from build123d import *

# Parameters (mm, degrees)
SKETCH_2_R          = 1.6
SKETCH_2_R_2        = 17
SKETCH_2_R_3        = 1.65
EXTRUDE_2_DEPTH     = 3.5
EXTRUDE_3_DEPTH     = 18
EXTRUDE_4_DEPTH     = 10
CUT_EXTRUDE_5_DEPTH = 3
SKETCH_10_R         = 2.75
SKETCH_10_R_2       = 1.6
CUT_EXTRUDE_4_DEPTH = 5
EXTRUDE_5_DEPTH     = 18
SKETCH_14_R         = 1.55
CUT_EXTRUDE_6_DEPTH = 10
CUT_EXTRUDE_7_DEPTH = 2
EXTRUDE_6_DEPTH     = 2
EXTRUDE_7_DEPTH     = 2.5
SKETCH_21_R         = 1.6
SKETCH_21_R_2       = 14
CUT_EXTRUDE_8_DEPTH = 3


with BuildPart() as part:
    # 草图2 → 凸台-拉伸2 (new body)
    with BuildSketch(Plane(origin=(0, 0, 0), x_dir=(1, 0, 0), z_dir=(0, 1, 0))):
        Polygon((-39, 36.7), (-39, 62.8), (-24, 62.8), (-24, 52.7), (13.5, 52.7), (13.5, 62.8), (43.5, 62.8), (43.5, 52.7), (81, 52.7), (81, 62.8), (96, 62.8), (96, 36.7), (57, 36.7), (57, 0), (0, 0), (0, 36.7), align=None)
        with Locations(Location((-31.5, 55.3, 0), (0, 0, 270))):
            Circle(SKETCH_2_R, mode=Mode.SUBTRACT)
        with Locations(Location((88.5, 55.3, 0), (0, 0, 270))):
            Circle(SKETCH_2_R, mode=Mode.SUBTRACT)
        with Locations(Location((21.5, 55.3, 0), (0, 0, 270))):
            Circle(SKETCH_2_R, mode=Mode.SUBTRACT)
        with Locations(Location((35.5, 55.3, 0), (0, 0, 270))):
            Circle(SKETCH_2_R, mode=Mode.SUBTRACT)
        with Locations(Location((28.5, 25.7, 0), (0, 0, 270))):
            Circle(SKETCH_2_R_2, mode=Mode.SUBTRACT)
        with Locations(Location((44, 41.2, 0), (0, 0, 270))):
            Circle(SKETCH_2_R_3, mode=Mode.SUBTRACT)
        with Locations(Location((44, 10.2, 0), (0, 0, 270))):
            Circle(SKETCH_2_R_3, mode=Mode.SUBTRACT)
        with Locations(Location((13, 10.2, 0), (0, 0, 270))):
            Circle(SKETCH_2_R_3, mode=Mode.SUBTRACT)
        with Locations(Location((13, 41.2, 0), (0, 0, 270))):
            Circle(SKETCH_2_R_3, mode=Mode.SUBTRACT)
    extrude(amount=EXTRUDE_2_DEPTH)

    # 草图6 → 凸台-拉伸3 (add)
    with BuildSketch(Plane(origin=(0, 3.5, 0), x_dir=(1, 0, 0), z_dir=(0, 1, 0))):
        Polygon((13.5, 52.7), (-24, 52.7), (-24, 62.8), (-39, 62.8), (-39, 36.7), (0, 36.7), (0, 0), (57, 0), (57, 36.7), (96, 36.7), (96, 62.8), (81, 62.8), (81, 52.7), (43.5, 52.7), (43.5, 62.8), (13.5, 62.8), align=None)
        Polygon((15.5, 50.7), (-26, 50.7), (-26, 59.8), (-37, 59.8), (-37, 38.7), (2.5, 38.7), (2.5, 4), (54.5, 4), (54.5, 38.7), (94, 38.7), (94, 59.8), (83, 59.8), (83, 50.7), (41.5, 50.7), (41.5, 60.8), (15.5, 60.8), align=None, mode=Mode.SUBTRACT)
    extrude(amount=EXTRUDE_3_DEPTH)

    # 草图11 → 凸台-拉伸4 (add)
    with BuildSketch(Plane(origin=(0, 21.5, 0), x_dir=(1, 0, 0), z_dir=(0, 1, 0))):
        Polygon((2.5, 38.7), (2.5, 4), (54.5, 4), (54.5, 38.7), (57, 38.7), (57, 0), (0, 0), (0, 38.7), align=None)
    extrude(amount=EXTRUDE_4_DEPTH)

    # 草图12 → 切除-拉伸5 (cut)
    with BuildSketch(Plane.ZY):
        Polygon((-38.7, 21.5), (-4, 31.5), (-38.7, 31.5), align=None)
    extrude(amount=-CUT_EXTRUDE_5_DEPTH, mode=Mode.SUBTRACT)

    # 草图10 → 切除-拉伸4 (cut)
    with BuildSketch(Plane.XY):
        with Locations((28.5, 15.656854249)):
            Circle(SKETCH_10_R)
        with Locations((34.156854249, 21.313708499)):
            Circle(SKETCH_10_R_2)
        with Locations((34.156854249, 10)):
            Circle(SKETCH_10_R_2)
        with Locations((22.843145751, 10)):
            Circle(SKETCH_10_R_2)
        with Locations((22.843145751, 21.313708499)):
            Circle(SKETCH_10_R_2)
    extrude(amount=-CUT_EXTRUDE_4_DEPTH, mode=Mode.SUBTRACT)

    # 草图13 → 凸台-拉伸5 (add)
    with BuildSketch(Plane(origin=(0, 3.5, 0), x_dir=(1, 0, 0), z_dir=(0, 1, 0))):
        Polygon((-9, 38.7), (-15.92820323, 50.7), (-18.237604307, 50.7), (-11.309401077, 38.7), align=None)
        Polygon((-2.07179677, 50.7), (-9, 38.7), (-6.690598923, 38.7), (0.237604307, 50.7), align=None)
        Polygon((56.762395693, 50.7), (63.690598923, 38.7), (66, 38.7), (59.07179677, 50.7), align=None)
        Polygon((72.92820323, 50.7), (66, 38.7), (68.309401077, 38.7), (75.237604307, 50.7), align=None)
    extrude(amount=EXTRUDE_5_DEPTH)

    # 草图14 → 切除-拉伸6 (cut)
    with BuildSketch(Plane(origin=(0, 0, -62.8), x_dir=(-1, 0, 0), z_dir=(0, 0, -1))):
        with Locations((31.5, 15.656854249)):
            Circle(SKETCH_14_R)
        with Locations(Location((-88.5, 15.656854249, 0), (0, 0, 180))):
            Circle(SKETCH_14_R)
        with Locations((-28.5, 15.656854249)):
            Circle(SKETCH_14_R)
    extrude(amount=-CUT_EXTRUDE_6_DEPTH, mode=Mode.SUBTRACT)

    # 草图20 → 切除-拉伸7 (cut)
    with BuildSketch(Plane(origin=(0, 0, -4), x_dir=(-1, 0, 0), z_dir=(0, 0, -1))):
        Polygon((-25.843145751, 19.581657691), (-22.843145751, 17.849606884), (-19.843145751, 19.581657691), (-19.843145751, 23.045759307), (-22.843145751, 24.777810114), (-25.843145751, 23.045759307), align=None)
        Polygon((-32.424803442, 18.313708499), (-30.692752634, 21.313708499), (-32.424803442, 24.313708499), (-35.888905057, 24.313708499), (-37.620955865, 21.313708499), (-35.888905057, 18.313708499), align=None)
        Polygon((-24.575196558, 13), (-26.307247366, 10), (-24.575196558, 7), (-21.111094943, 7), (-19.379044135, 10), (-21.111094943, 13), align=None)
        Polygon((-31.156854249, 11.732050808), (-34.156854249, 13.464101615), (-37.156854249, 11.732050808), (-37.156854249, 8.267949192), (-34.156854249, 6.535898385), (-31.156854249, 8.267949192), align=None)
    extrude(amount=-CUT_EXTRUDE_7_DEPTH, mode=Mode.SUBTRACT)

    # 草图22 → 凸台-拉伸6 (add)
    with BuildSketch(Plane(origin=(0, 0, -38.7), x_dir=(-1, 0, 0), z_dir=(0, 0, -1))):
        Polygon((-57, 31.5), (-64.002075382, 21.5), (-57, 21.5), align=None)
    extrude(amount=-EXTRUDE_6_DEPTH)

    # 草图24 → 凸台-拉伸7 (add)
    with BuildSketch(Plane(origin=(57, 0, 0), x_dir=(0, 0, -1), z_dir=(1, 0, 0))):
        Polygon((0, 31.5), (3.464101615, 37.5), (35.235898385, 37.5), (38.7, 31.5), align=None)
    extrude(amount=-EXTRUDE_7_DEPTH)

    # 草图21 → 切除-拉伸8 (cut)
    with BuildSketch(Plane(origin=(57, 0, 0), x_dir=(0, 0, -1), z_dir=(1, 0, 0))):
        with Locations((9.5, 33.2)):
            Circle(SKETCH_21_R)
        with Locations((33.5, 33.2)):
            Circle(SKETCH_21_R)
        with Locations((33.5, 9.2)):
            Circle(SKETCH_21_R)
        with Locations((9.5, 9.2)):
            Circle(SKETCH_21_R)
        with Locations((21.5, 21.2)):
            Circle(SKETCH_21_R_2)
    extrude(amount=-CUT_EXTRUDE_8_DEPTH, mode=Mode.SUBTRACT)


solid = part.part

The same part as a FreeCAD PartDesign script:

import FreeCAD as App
import Part
import Sketcher
from FreeCAD import Vector
Q = App.Units.Quantity


def add_polygon(sketch, points):
    """Adds a closed chain of lines whose ends are joined by coincident constraints."""
    first, n = sketch.GeometryCount, len(points)
    for a, b in zip(points, points[1:] + points[:1]):
        sketch.addGeometry(Part.LineSegment(App.Vector(*a, 0), App.Vector(*b, 0)), False)
    for i in range(n):
        sketch.addConstraint(Sketcher.Constraint("Coincident", first + i, 2, first + (i + 1) % n, 1))

doc = App.newDocument("Part")
body = doc.addObject("PartDesign::Body", "Body")

sketch1 = doc.addObject("Sketcher::SketchObject", "Sketch")
body.addObject(sketch1)
sketch1.AttachmentSupport = (doc.XZ_Plane, [""])
sketch1.MapMode = "FlatFace"
add_polygon(sketch1, [(-39, -62.8), (-39, -36.7), (0, -36.7), (0, 0), (57, 0), (57, -36.7), (96, -36.7), (96, -62.8), (81, -62.8), (81, -52.7), (43.5, -52.7), (43.5, -62.8), (13.5, -62.8), (13.5, -52.7), (-24, -52.7), (-24, -62.8)])
sketch1.addGeometry(Part.Circle(Vector(44, -10.2, 0), Vector(0, 0, 1), 1.6), False)
sketch1.addGeometry(Part.Circle(Vector(28.5, -25.7, 0), Vector(0, 0, 1), 17), False)
sketch1.addGeometry(Part.Circle(Vector(13, -10.2, 0), Vector(0, 0, 1), 1.6), False)
sketch1.addGeometry(Part.Circle(Vector(44, -41.2, 0), Vector(0, 0, 1), 1.6), False)
sketch1.addGeometry(Part.Circle(Vector(88.5, -55.3, 0), Vector(0, 0, 1), 1.6), False)
sketch1.addGeometry(Part.Circle(Vector(35.5, -55.3, 0), Vector(0, 0, 1), 1.6), False)
sketch1.addGeometry(Part.Circle(Vector(13, -41.2, 0), Vector(0, 0, 1), 1.6), False)
sketch1.addGeometry(Part.Circle(Vector(21.5, -55.3, 0), Vector(0, 0, 1), 1.6), False)
sketch1.addGeometry(Part.Circle(Vector(-31.5, -55.3, 0), Vector(0, 0, 1), 1.6), False)
sketch1.addConstraint([
    Sketcher.Constraint("Vertical", 0),
    Sketcher.Constraint("Horizontal", 1),
    Sketcher.Constraint("Vertical", 2),
    Sketcher.Constraint("Horizontal", 3),
    Sketcher.Constraint("Vertical", 4),
    Sketcher.Constraint("Horizontal", 5),
    Sketcher.Constraint("Vertical", 6),
    Sketcher.Constraint("Horizontal", 7),
    Sketcher.Constraint("Vertical", 8),
    Sketcher.Constraint("Horizontal", 9),
    Sketcher.Constraint("Vertical", 10),
    Sketcher.Constraint("Horizontal", 11),
    Sketcher.Constraint("Vertical", 12),
    Sketcher.Constraint("Horizontal", 13),
    Sketcher.Constraint("Vertical", 14),
    Sketcher.Constraint("Horizontal", 15),
    Sketcher.Constraint("Coincident", 2, 2, -1, 1),
    Sketcher.Constraint("Equal", 16, 18),
    Sketcher.Constraint("Equal", 18, 19),
    Sketcher.Constraint("Equal", 20, 21),
    Sketcher.Constraint("Equal", 19, 22),
    Sketcher.Constraint("Equal", 21, 23),
    Sketcher.Constraint("Equal", 23, 24),
    Sketcher.Constraint("Horizontal", 16, 3, 18, 3),
    Sketcher.Constraint("Horizontal", 20, 3, 21, 3),
    Sketcher.Constraint("Horizontal", 19, 3, 22, 3),
    Sketcher.Constraint("Horizontal", 21, 3, 23, 3),
    Sketcher.Constraint("Horizontal", 23, 3, 24, 3),
    Sketcher.Constraint("Horizontal", 1, 2, 4, 2),
    Sketcher.Constraint("Horizontal", 7, 2, 10, 2),
    Sketcher.Constraint("Horizontal", 9, 2, 12, 2),
    Sketcher.Constraint("Horizontal", 11, 2, 14, 2),
    Sketcher.Constraint("Vertical", 16, 3, 19, 3),
    Sketcher.Constraint("Vertical", 18, 3, 22, 3),
    Sketcher.Constraint("Equal", 1, 5),
    Sketcher.Constraint("Equal", 9, 13),
    Sketcher.Constraint("Equal", 7, 15),
    Sketcher.Constraint("Diameter", 17, 34.0),
    Sketcher.Constraint("Diameter", 16, 3.3),
    Sketcher.Constraint("Diameter", 20, 3.2),
    Sketcher.Constraint("DistanceX", 1, 1, 1, 2, 39.0),
    Sketcher.Constraint("DistanceX", 3, 1, 3, 2, 57.0),
    Sketcher.Constraint("DistanceX", 7, 2, 7, 1, 15.0),
    Sketcher.Constraint("DistanceX", 11, 2, 11, 1, 30.0),
    Sketcher.Constraint("DistanceY", 0, 1, 0, 2, 26.1),
    Sketcher.Constraint("DistanceY", 2, 1, 2, 2, 36.7),
    Sketcher.Constraint("DistanceY", 8, 1, 8, 2, 10.1),
    Sketcher.Constraint("DistanceX", -1, 1, 16, 3, 44.0),
    Sketcher.Constraint("DistanceX", -1, 1, 18, 3, 13.0),
    Sketcher.Constraint("DistanceY", 19, 3, 16, 3, 31.0),
    Sketcher.Constraint("DistanceX", 17, 3, 20, 3, 60.0),
    Sketcher.Constraint("DistanceX", 17, 3, 21, 3, 7.0),
    Sketcher.Constraint("DistanceX", 23, 3, 21, 3, 14.0),
    Sketcher.Constraint("DistanceX", 24, 3, 23, 3, 53.0),
    Sketcher.Constraint("DistanceY", 0, 2, 17, 3, 11.0),
    Sketcher.Constraint("DistanceX", 21, 3, 9, 2, 8.0),
    Sketcher.Constraint("DistanceY", 16, 3, -1, 1, 10.2),
    Sketcher.Constraint("DistanceY", 20, 3, -1, 1, 55.3),
])
pad1 = doc.addObject("PartDesign::Pad", "Pad")
body.addObject(pad1)
pad1.Profile = sketch1
pad1.Length = 3.5
pad1.Reversed = True

sketch2 = doc.addObject("Sketcher::SketchObject", "Sketch001")
body.addObject(sketch2)
sketch2.AttachmentSupport = (doc.XZ_Plane, [""])
sketch2.MapMode = "FlatFace"
sketch2.AttachmentOffset = App.Placement(Vector(0, 0, -3.5), App.Rotation())
add_polygon(sketch2, [(14, -53), (-24, -53), (-24, -63), (-39, -63), (-39, -37), (0, -37), (0, 0), (57, 0), (57, -37), (96, -37), (96, -63), (81, -63), (81, -53), (44, -53), (44, -63), (14, -63)])
add_polygon(sketch2, [(-26, -51), (16, -51), (16, -61), (42, -61), (42, -51), (83, -51), (83, -60), (94, -60), (94, -39), (54, -39), (54, -4), (2, -4), (2, -39), (-37, -39), (-37, -60), (-26, -60)])
sketch2.addConstraint([
    Sketcher.Constraint("Horizontal", 0),
    Sketcher.Constraint("Vertical", 1),
    Sketcher.Constraint("Horizontal", 2),
    Sketcher.Constraint("Vertical", 3),
    Sketcher.Constraint("Horizontal", 4),
    Sketcher.Constraint("Vertical", 5),
    Sketcher.Constraint("Horizontal", 6),
    Sketcher.Constraint("Vertical", 7),
    Sketcher.Constraint("Horizontal", 8),
    Sketcher.Constraint("Vertical", 9),
    Sketcher.Constraint("Horizontal", 10),
    Sketcher.Constraint("Vertical", 11),
    Sketcher.Constraint("Horizontal", 12),
    Sketcher.Constraint("Vertical", 13),
    Sketcher.Constraint("Horizontal", 14),
    Sketcher.Constraint("Vertical", 15),
    Sketcher.Constraint("Horizontal", 16),
    Sketcher.Constraint("Vertical", 17),
    Sketcher.Constraint("Horizontal", 18),
    Sketcher.Constraint("Vertical", 19),
    Sketcher.Constraint("Horizontal", 20),
    Sketcher.Constraint("Vertical", 21),
    Sketcher.Constraint("Horizontal", 22),
    Sketcher.Constraint("Vertical", 23),
    Sketcher.Constraint("Horizontal", 24),
    Sketcher.Constraint("Vertical", 25),
    Sketcher.Constraint("Horizontal", 26),
    Sketcher.Constraint("Vertical", 27),
    Sketcher.Constraint("Horizontal", 28),
    Sketcher.Constraint("Vertical", 29),
    Sketcher.Constraint("Horizontal", 30),
    Sketcher.Constraint("Vertical", 31),
    Sketcher.Constraint("Coincident", 5, 2, -1, 1),
    Sketcher.Constraint("Horizontal", 4, 2, 7, 2),
    Sketcher.Constraint("Horizontal", 2, 2, 9, 2),
    Sketcher.Constraint("Horizontal", 0, 2, 11, 2),
    Sketcher.Constraint("Horizontal", 10, 2, 13, 2),
    Sketcher.Constraint("Horizontal", 16, 2, 19, 2),
    Sketcher.Constraint("Horizontal", 24, 2, 27, 2),
    Sketcher.Constraint("Horizontal", 22, 2, 29, 2),
    Sketcher.Constraint("Equal", 4, 8),
    Sketcher.Constraint("Equal", 2, 10),
    Sketcher.Constraint("Equal", 0, 12),
    Sketcher.Constraint("Equal", 16, 20),
    Sketcher.Constraint("Equal", 24, 28),
    Sketcher.Constraint("Equal", 22, 30),
    Sketcher.Constraint("Equal", 15, 17),
    Sketcher.Constraint("DistanceX", 2, 2, 2, 1, 15.0),
    Sketcher.Constraint("DistanceX", 4, 1, 4, 2, 39.0),
    Sketcher.Constraint("DistanceX", 6, 1, 6, 2, 57.0),
    Sketcher.Constraint("DistanceX", 14, 2, 14, 1, 30.0),
    Sketcher.Constraint("DistanceX", 18, 1, 18, 2, 26.0),
    Sketcher.Constraint("DistanceX", 22, 1, 22, 2, 11.0),
    Sketcher.Constraint("DistanceX", 26, 2, 26, 1, 52.0),
    Sketcher.Constraint("DistanceX", 16, 1, 16, 2, 41.5),
    Sketcher.Constraint("DistanceY", 1, 2, 1, 1, 10.1),
    Sketcher.Constraint("DistanceY", 3, 1, 3, 2, 26.1),
    Sketcher.Constraint("DistanceY", 5, 1, 5, 2, 36.7),
    Sketcher.Constraint("DistanceY", 21, 2, 21, 1, 9.1),
    Sketcher.Constraint("DistanceY", 23, 1, 23, 2, 21.1),
    Sketcher.Constraint("DistanceY", 25, 1, 25, 2, 34.7),
    Sketcher.Constraint("DistanceX", -1, 1, 20, 2, 83.0),
    Sketcher.Constraint("DistanceY", 25, 2, -1, 1, 4.0),
])
pad2 = doc.addObject("PartDesign::Pad", "Pad001")
body.addObject(pad2)
pad2.Profile = sketch2
pad2.Length = 18
pad2.Reversed = True

sketch3 = doc.addObject("Sketcher::SketchObject", "Sketch002")
body.addObject(sketch3)
sketch3.AttachmentSupport = (doc.XZ_Plane, [""])
sketch3.MapMode = "FlatFace"
sketch3.AttachmentOffset = App.Placement(Vector(0, 0, -21.5), App.Rotation())
add_polygon(sketch3, [(2.5, -4), (2.5, -38.7), (0, -38.7), (0, 0), (57, 0), (57, -38.7), (54.5, -38.7), (54.5, -4)])
sketch3.addConstraint([
    Sketcher.Constraint("Vertical", 0),
    Sketcher.Constraint("Horizontal", 1),
    Sketcher.Constraint("Vertical", 2),
    Sketcher.Constraint("Horizontal", 3),
    Sketcher.Constraint("Vertical", 4),
    Sketcher.Constraint("Horizontal", 5),
    Sketcher.Constraint("Vertical", 6),
    Sketcher.Constraint("Horizontal", 7),
    Sketcher.Constraint("Coincident", 2, 2, -1, 1),
    Sketcher.Constraint("Horizontal", 1, 2, 4, 2),
    Sketcher.Constraint("Equal", 1, 5),
    Sketcher.Constraint("DistanceX", 3, 1, 3, 2, 57.0),
    Sketcher.Constraint("DistanceX", 7, 2, 7, 1, 52.0),
    Sketcher.Constraint("DistanceY", 0, 2, 0, 1, 34.7),
    Sketcher.Constraint("DistanceY", 2, 1, 2, 2, 38.7),
])
pad3 = doc.addObject("PartDesign::Pad", "Pad002")
body.addObject(pad3)
pad3.Profile = sketch3
pad3.Length = 10
pad3.Reversed = True

sketch4 = doc.addObject("Sketcher::SketchObject", "Sketch003")
body.addObject(sketch4)
sketch4.AttachmentSupport = (doc.YZ_Plane, [""])
sketch4.MapMode = "FlatFace"
add_polygon(sketch4, [(22, -39), (32, -4), (32, -39)])
sketch4.addConstraint([
    Sketcher.Constraint("Vertical", 1),
    Sketcher.Constraint("Horizontal", 2),
    Sketcher.Constraint("DistanceX", 2, 2, 2, 1, 10.0),
    Sketcher.Constraint("DistanceY", 1, 2, 1, 1, 34.7),
    Sketcher.Constraint("DistanceY", 0, 2, -1, 1, 4.0),
    Sketcher.Constraint("DistanceX", -1, 1, 0, 2, 31.5),
])
pocket1 = doc.addObject("PartDesign::Pocket", "Pocket")
body.addObject(pocket1)
pocket1.Profile = sketch4
pocket1.Length = 3
pocket1.Reversed = True

sketch5 = doc.addObject("Sketcher::SketchObject", "Sketch004")
body.addObject(sketch5)
sketch5.AttachmentSupport = (doc.XY_Plane, [""])
sketch5.MapMode = "FlatFace"
sketch5.addGeometry([
    Part.Circle(Vector(28.5, 15.7, 0), Vector(0, 0, 1), 2.8),
    Part.Circle(Vector(34.2, 21.3, 0), Vector(0, 0, 1), 1.6),
    Part.Circle(Vector(34.2, 10, 0), Vector(0, 0, 1), 1.6),
    Part.Circle(Vector(22.8, 10, 0), Vector(0, 0, 1), 1.6),
    Part.Circle(Vector(22.8, 21.3, 0), Vector(0, 0, 1), 1.6),
], False)
sketch5.addConstraint([
    Sketcher.Constraint("Equal", 1, 2),
    Sketcher.Constraint("Equal", 2, 3),
    Sketcher.Constraint("Equal", 3, 4),
    Sketcher.Constraint("Horizontal", 2, 3, 3, 3),
    Sketcher.Constraint("Horizontal", 1, 3, 4, 3),
    Sketcher.Constraint("Vertical", 1, 3, 2, 3),
    Sketcher.Constraint("Vertical", 3, 3, 4, 3),
    Sketcher.Constraint("Diameter", 0, 5.5),
    Sketcher.Constraint("Diameter", 1, 3.2),
    Sketcher.Constraint("DistanceY", -1, 1, 2, 3, 10.0),
    Sketcher.Constraint("DistanceX", -1, 1, 0, 3, 28.5),
    Sketcher.Constraint("DistanceY", -1, 1, 1, 3, 21.313708),
    Sketcher.Constraint("DistanceX", 3, 3, 2, 3, 11.313708),
    Sketcher.Constraint("DistanceY", -1, 1, 0, 3, 15.656854),
    Sketcher.Constraint("DistanceX", -1, 1, 1, 3, 34.156854),
])
pocket2 = doc.addObject("PartDesign::Pocket", "Pocket001")
body.addObject(pocket2)
pocket2.Profile = sketch5
pocket2.Length = 5

sketch6 = doc.addObject("Sketcher::SketchObject", "Sketch005")
body.addObject(sketch6)
sketch6.AttachmentSupport = (doc.XZ_Plane, [""])
sketch6.MapMode = "FlatFace"
sketch6.AttachmentOffset = App.Placement(Vector(0, 0, -3.5), App.Rotation())
add_polygon(sketch6, [(-9, -38.7), (-15.9, -50.7), (-18.2, -50.7), (-11.3, -38.7)])
add_polygon(sketch6, [(-2.1, -50.7), (-9, -38.7), (-6.7, -38.7), (0.2, -50.7)])
add_polygon(sketch6, [(56.8, -50.7), (63.7, -38.7), (66, -38.7), (59.1, -50.7)])
add_polygon(sketch6, [(72.9, -50.7), (66, -38.7), (68.3, -38.7), (75.2, -50.7)])
sketch6.addConstraint([
    Sketcher.Constraint("Horizontal", 1),
    Sketcher.Constraint("Horizontal", 3),
    Sketcher.Constraint("Horizontal", 5),
    Sketcher.Constraint("Horizontal", 7),
    Sketcher.Constraint("Horizontal", 9),
    Sketcher.Constraint("Horizontal", 11),
    Sketcher.Constraint("Horizontal", 13),
    Sketcher.Constraint("Horizontal", 15),
    Sketcher.Constraint("Coincident", 4, 2, 3, 2),
    Sketcher.Constraint("Coincident", 12, 2, 9, 2),
    Sketcher.Constraint("Parallel", 0, 2),
    Sketcher.Constraint("Parallel", 4, 6),
    Sketcher.Constraint("Parallel", 2, 8),
    Sketcher.Constraint("Parallel", 8, 10),
    Sketcher.Constraint("Parallel", 6, 12),
    Sketcher.Constraint("Parallel", 12, 14),
    Sketcher.Constraint("Horizontal", 1, 2, 6, 2),
    Sketcher.Constraint("Horizontal", 5, 2, 8, 2),
    Sketcher.Constraint("Horizontal", 7, 2, 10, 2),
    Sketcher.Constraint("Horizontal", 11, 2, 14, 2),
    Sketcher.Constraint("Equal", 3, 5),
    Sketcher.Constraint("Equal", 7, 9),
    Sketcher.Constraint("Equal", 11, 13),
    Sketcher.Constraint("Equal", 2, 4),
    Sketcher.Constraint("Angle", 0, Q("-120 deg")),
    Sketcher.Constraint("DistanceX", 3, 2, -1, 1, 9.0),
    Sketcher.Constraint("DistanceX", -1, 1, 9, 2, 66.0),
    Sketcher.Constraint("DistanceY", 0, 2, 2, 2, 12.0),
    Sketcher.Constraint("DistanceY", 0, 2, -1, 1, 50.7),
    Sketcher.Constraint("DistanceX", 1, 2, 1, 1, 2.309401),
])
pad4 = doc.addObject("PartDesign::Pad", "Pad003")
body.addObject(pad4)
pad4.Profile = sketch6
pad4.Length = 18
pad4.Reversed = True

sketch7 = doc.addObject("Sketcher::SketchObject", "Sketch006")
body.addObject(sketch7)
sketch7.AttachmentSupport = (doc.XY_Plane, [""])
sketch7.MapMode = "FlatFace"
sketch7.AttachmentOffset = App.Placement(Vector(0, 0, -62.8), App.Rotation())
sketch7.addGeometry([
    Part.Circle(Vector(-31.5, 15.7, 0), Vector(0, 0, 1), 1.6),
    Part.Circle(Vector(88.5, 15.7, 0), Vector(0, 0, 1), 1.6),
    Part.Circle(Vector(28.5, 15.7, 0), Vector(0, 0, 1), 1.6),
], False)
sketch7.addConstraint([
    Sketcher.Constraint("Equal", 0, 1),
    Sketcher.Constraint("Equal", 1, 2),
    Sketcher.Constraint("Horizontal", 0, 3, 1, 3),
    Sketcher.Constraint("Horizontal", 1, 3, 2, 3),
    Sketcher.Constraint("Diameter", 0, 3.1),
    Sketcher.Constraint("DistanceX", 0, 3, 1, 3, 120.0),
    Sketcher.Constraint("DistanceX", 0, 3, 2, 3, 60.0),
    Sketcher.Constraint("DistanceX", 0, 3, -1, 1, 31.5),
    Sketcher.Constraint("DistanceY", -1, 1, 0, 3, 15.656854),
])
pocket3 = doc.addObject("PartDesign::Pocket", "Pocket002")
body.addObject(pocket3)
pocket3.Profile = sketch7
pocket3.Length = 10
pocket3.Reversed = True

sketch8 = doc.addObject("Sketcher::SketchObject", "Sketch007")
body.addObject(sketch8)
sketch8.AttachmentSupport = (doc.XY_Plane, [""])
sketch8.MapMode = "FlatFace"
sketch8.AttachmentOffset = App.Placement(Vector(0, 0, -4), App.Rotation())
add_polygon(sketch8, [(25.8, 19.6), (22.8, 17.8), (19.8, 19.6), (19.8, 23), (22.8, 24.8), (25.8, 23)])
add_polygon(sketch8, [(32.4, 18.3), (30.7, 21.3), (32.4, 24.3), (35.9, 24.3), (37.6, 21.3), (35.9, 18.3)])
add_polygon(sketch8, [(24.6, 13), (26.3, 10), (24.6, 7), (21.1, 7), (19.4, 10), (21.1, 13)])
add_polygon(sketch8, [(31.2, 11.7), (34.2, 13.5), (37.2, 11.7), (37.2, 8.3), (34.2, 6.5), (31.2, 8.3)])
sketch8.addConstraint([
    Sketcher.Constraint("Vertical", 2),
    Sketcher.Constraint("Vertical", 5),
    Sketcher.Constraint("Horizontal", 8),
    Sketcher.Constraint("Horizontal", 11),
    Sketcher.Constraint("Horizontal", 14),
    Sketcher.Constraint("Horizontal", 17),
    Sketcher.Constraint("Vertical", 20),
    Sketcher.Constraint("Vertical", 23),
    Sketcher.Constraint("Parallel", 0, 3),
    Sketcher.Constraint("Parallel", 1, 4),
    Sketcher.Constraint("Perpendicular", 3, 6),
    Sketcher.Constraint("Perpendicular", 4, 7),
    Sketcher.Constraint("Parallel", 6, 9),
    Sketcher.Constraint("Parallel", 7, 10),
    Sketcher.Constraint("Parallel", 9, 12),
    Sketcher.Constraint("Parallel", 10, 13),
    Sketcher.Constraint("Parallel", 12, 15),
    Sketcher.Constraint("Parallel", 13, 16),
    Sketcher.Constraint("Perpendicular", 15, 18),
    Sketcher.Constraint("Perpendicular", 16, 19),
    Sketcher.Constraint("Parallel", 18, 21),
    Sketcher.Constraint("Parallel", 19, 22),
    Sketcher.Constraint("Horizontal", 2, 2, 4, 2),
    Sketcher.Constraint("Horizontal", 1, 2, 5, 2),
    Sketcher.Constraint("Horizontal", 6, 2, 9, 2),
    Sketcher.Constraint("Horizontal", 12, 2, 15, 2),
    Sketcher.Constraint("Horizontal", 20, 2, 22, 2),
    Sketcher.Constraint("Horizontal", 19, 2, 23, 2),
    Sketcher.Constraint("Vertical", 0, 2, 3, 2),
    Sketcher.Constraint("Vertical", 8, 2, 10, 2),
    Sketcher.Constraint("Vertical", 14, 2, 16, 2),
    Sketcher.Constraint("Equal", 11, 14),
    Sketcher.Constraint("Equal", 17, 2),
    Sketcher.Constraint("Equal", 5, 20),
    Sketcher.Constraint("Equal", 4, 6),
    Sketcher.Constraint("Equal", 10, 12),
    Sketcher.Constraint("Equal", 16, 18),
    Sketcher.Constraint("Angle", 0, Q("-150 deg")),
    Sketcher.Constraint("DistanceY", -1, 1, 12, 2, 10.0),
    Sketcher.Constraint("DistanceY", -1, 1, 13, 2, 7.0),
    Sketcher.Constraint("DistanceX", 8, 1, 8, 2, 3.464102),
    Sketcher.Constraint("DistanceY", -1, 1, 18, 2, 13.464102),
    Sketcher.Constraint("DistanceY", 0, 2, 6, 2, 3.464102),
    Sketcher.Constraint("DistanceX", 0, 2, 12, 2, 3.464102),
    Sketcher.Constraint("DistanceX", 6, 2, 18, 2, 3.464102),
    Sketcher.Constraint("DistanceY", -1, 1, 2, 2, 23.045759),
    Sketcher.Constraint("DistanceX", 4, 2, 8, 2, 10.045759),
    Sketcher.Constraint("DistanceX", -1, 1, 0, 2, 22.843146),
])
pocket4 = doc.addObject("PartDesign::Pocket", "Pocket003")
body.addObject(pocket4)
pocket4.Profile = sketch8
pocket4.Length = 2
pocket4.Reversed = True

sketch9 = doc.addObject("Sketcher::SketchObject", "Sketch008")
body.addObject(sketch9)
sketch9.AttachmentSupport = (doc.XY_Plane, [""])
sketch9.MapMode = "FlatFace"
sketch9.AttachmentOffset = App.Placement(Vector(0, 0, -38.7), App.Rotation())
add_polygon(sketch9, [(57, 32), (64, 22), (57, 22)])
sketch9.addConstraint([
    Sketcher.Constraint("Horizontal", 1),
    Sketcher.Constraint("Vertical", 2),
    Sketcher.Constraint("DistanceY", 2, 1, 2, 2, 10.0),
    Sketcher.Constraint("Angle", 0, Q("-55 deg")),
    Sketcher.Constraint("DistanceX", -1, 1, 1, 2, 57.0),
    Sketcher.Constraint("DistanceY", -1, 1, 0, 2, 21.5),
])
pad5 = doc.addObject("PartDesign::Pad", "Pad004")
body.addObject(pad5)
pad5.Profile = sketch9
pad5.Length = 2

sketch10 = doc.addObject("Sketcher::SketchObject", "Sketch009")
body.addObject(sketch10)
sketch10.AttachmentSupport = (doc.YZ_Plane, [""])
sketch10.MapMode = "FlatFace"
sketch10.AttachmentOffset = App.Placement(Vector(0, 0, 57), App.Rotation())
add_polygon(sketch10, [(38, -3), (32, 0), (32, -39), (38, -35)])
sketch10.addConstraint([
    Sketcher.Constraint("Vertical", 1),
    Sketcher.Constraint("Vertical", 3),
    Sketcher.Constraint("PointOnObject", 0, 2, -1),
    Sketcher.Constraint("Equal", 0, 2),
    Sketcher.Constraint("Angle", 0, Q("150 deg")),
    Sketcher.Constraint("DistanceY", 1, 2, 1, 1, 38.7),
    Sketcher.Constraint("DistanceX", 1, 2, 2, 2, 6.0),
    Sketcher.Constraint("DistanceX", -1, 1, 0, 2, 31.5),
])
pad6 = doc.addObject("PartDesign::Pad", "Pad005")
body.addObject(pad6)
pad6.Profile = sketch10
pad6.Length = 2.5
pad6.Reversed = True

sketch11 = doc.addObject("Sketcher::SketchObject", "Sketch010")
body.addObject(sketch11)
sketch11.AttachmentSupport = (doc.YZ_Plane, [""])
sketch11.MapMode = "FlatFace"
sketch11.AttachmentOffset = App.Placement(Vector(0, 0, 57), App.Rotation())
sketch11.addGeometry([
    Part.Circle(Vector(33.2, -9.5, 0), Vector(0, 0, 1), 1.6),
    Part.Circle(Vector(33.2, -33.5, 0), Vector(0, 0, 1), 1.6),
    Part.Circle(Vector(9.2, -33.5, 0), Vector(0, 0, 1), 1.6),
    Part.Circle(Vector(9.2, -9.5, 0), Vector(0, 0, 1), 1.6),
    Part.Circle(Vector(21.2, -21.5, 0), Vector(0, 0, 1), 14),
], False)
sketch11.addConstraint([
    Sketcher.Constraint("Equal", 0, 1),
    Sketcher.Constraint("Equal", 1, 2),
    Sketcher.Constraint("Equal", 2, 3),
    Sketcher.Constraint("Horizontal", 1, 3, 2, 3),
    Sketcher.Constraint("Horizontal", 0, 3, 3, 3),
    Sketcher.Constraint("Vertical", 0, 3, 1, 3),
    Sketcher.Constraint("Vertical", 2, 3, 3, 3),
    Sketcher.Constraint("Diameter", 4, 28.0),
    Sketcher.Constraint("Diameter", 0, 3.2),
    Sketcher.Constraint("DistanceY", 1, 3, 0, 3, 24.0),
    Sketcher.Constraint("DistanceX", 2, 3, 1, 3, 24.0),
    Sketcher.Constraint("DistanceX", 2, 3, 4, 3, 12.0),
    Sketcher.Constraint("DistanceY", 2, 3, 4, 3, 12.0),
    Sketcher.Constraint("DistanceX", -1, 1, 0, 3, 33.2),
    Sketcher.Constraint("DistanceY", 0, 3, -1, 1, 9.5),
])
pocket5 = doc.addObject("PartDesign::Pocket", "Pocket004")
body.addObject(pocket5)
pocket5.Profile = sketch11
pocket5.Length = 3

doc.recompute()
